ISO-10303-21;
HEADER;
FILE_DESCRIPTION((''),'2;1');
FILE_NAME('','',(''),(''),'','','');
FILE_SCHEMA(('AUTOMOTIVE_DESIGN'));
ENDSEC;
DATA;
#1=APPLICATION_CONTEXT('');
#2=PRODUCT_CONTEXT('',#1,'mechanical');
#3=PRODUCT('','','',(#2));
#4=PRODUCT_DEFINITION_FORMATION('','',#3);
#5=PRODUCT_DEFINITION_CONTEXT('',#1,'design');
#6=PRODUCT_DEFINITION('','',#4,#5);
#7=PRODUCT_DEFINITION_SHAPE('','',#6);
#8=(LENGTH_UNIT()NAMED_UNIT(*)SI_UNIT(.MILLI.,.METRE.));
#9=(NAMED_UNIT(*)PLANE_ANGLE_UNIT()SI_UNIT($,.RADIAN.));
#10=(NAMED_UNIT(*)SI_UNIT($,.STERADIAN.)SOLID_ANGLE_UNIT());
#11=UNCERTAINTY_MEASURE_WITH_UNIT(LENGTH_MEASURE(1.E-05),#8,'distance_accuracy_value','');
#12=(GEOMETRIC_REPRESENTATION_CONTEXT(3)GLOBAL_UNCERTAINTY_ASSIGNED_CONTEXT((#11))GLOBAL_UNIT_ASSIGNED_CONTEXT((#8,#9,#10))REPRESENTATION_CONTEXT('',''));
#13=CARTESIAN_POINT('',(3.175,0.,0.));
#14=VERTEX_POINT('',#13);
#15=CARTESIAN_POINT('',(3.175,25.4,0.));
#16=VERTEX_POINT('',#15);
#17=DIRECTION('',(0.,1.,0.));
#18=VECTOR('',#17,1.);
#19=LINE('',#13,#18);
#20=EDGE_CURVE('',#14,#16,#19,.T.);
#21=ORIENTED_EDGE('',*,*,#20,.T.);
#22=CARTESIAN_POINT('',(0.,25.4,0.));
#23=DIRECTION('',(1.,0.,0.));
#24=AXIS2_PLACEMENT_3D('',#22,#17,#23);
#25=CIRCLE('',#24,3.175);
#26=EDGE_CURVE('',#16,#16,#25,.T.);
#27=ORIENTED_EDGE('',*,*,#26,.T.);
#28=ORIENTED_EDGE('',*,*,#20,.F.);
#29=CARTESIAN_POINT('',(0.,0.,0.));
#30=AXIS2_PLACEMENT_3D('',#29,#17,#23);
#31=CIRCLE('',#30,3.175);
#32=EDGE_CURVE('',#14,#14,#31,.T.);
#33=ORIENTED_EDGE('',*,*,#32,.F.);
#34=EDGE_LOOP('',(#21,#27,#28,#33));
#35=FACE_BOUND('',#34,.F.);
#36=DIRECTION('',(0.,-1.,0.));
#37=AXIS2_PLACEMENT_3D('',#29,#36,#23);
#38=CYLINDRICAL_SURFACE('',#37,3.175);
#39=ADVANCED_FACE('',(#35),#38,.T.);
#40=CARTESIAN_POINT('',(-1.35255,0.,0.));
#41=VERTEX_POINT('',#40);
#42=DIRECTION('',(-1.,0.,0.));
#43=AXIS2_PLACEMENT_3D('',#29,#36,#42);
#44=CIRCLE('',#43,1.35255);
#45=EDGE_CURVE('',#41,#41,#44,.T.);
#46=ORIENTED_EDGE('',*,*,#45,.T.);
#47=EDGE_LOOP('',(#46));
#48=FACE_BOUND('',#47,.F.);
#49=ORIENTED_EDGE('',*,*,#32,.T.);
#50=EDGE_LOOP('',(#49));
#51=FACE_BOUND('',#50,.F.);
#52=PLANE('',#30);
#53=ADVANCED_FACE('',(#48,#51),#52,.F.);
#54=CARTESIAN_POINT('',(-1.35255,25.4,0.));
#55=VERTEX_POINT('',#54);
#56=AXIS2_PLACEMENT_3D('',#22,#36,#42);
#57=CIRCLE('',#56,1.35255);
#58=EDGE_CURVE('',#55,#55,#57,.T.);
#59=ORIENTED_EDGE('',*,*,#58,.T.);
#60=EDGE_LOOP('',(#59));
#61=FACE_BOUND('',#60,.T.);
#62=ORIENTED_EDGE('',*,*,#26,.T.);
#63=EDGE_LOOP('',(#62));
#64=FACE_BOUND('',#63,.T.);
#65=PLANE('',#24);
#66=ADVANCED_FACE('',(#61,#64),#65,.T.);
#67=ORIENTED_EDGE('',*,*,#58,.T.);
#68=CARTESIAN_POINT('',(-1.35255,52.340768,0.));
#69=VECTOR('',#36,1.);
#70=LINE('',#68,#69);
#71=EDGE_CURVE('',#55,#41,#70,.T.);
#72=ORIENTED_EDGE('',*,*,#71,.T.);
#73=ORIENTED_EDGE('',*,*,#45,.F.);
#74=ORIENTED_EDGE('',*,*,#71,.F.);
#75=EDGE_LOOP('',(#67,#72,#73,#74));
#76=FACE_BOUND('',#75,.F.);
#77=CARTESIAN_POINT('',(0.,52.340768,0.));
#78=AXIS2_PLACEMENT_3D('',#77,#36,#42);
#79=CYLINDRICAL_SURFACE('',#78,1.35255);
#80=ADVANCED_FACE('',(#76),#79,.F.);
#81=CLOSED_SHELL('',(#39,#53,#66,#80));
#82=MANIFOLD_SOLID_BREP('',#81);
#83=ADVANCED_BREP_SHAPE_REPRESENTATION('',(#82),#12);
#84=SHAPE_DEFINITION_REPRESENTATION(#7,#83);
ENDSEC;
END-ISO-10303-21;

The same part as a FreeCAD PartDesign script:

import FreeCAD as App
import Part
import Sketcher
Q = App.Units.Quantity

doc = App.newDocument("Part")
body = doc.addObject("PartDesign::Body", "Body")

sketch1 = body.newObject("Sketcher::SketchObject", "Sketch")
sketch1.AttachmentSupport = (doc.getObject("XZ_Plane"), [""])
sketch1.MapMode = "FlatFace"
sketch1.addGeometry(Part.Circle(App.Vector(0, 0, 0), App.Vector(0, 0, 1), 3.2), False)
sketch1.addConstraint([
    Sketcher.Constraint("Coincident", 0, 3, -1, 1),
    Sketcher.Constraint("Diameter", 0, Q("0.25 in")),
])
pad1 = body.newObject("PartDesign::Pad", "Pad")
pad1.Profile = sketch1
pad1.Length = Q("1 in")
pad1.Reversed = True

sketch2 = body.newObject("Sketcher::SketchObject", "Sketch001")
sketch2.AttachmentSupport = (doc.getObject("XZ_Plane"), [""])
sketch2.MapMode = "FlatFace"
sketch2.AttachmentOffset = App.Placement(App.Vector(0, 0, -1 * 25.4), App.Rotation())
sketch2.addGeometry(Part.Circle(App.Vector(0, 0, 0), App.Vector(0, 0, 1), 1.4), False)
sketch2.addConstraint([
    Sketcher.Constraint("Coincident", 0, 3, -1, 1),
    Sketcher.Constraint("Diameter", 0, Q("0.1065 in")),
])
doc.recompute()
hole = body.newObject("PartDesign::Hole", "Hole")
hole.Profile = sketch2
hole.ThreadType = "None"
hole.Diameter = Q("0.1065 in")
hole.DepthType = "ThroughAll"
hole.Reversed = True

doc.recompute()
